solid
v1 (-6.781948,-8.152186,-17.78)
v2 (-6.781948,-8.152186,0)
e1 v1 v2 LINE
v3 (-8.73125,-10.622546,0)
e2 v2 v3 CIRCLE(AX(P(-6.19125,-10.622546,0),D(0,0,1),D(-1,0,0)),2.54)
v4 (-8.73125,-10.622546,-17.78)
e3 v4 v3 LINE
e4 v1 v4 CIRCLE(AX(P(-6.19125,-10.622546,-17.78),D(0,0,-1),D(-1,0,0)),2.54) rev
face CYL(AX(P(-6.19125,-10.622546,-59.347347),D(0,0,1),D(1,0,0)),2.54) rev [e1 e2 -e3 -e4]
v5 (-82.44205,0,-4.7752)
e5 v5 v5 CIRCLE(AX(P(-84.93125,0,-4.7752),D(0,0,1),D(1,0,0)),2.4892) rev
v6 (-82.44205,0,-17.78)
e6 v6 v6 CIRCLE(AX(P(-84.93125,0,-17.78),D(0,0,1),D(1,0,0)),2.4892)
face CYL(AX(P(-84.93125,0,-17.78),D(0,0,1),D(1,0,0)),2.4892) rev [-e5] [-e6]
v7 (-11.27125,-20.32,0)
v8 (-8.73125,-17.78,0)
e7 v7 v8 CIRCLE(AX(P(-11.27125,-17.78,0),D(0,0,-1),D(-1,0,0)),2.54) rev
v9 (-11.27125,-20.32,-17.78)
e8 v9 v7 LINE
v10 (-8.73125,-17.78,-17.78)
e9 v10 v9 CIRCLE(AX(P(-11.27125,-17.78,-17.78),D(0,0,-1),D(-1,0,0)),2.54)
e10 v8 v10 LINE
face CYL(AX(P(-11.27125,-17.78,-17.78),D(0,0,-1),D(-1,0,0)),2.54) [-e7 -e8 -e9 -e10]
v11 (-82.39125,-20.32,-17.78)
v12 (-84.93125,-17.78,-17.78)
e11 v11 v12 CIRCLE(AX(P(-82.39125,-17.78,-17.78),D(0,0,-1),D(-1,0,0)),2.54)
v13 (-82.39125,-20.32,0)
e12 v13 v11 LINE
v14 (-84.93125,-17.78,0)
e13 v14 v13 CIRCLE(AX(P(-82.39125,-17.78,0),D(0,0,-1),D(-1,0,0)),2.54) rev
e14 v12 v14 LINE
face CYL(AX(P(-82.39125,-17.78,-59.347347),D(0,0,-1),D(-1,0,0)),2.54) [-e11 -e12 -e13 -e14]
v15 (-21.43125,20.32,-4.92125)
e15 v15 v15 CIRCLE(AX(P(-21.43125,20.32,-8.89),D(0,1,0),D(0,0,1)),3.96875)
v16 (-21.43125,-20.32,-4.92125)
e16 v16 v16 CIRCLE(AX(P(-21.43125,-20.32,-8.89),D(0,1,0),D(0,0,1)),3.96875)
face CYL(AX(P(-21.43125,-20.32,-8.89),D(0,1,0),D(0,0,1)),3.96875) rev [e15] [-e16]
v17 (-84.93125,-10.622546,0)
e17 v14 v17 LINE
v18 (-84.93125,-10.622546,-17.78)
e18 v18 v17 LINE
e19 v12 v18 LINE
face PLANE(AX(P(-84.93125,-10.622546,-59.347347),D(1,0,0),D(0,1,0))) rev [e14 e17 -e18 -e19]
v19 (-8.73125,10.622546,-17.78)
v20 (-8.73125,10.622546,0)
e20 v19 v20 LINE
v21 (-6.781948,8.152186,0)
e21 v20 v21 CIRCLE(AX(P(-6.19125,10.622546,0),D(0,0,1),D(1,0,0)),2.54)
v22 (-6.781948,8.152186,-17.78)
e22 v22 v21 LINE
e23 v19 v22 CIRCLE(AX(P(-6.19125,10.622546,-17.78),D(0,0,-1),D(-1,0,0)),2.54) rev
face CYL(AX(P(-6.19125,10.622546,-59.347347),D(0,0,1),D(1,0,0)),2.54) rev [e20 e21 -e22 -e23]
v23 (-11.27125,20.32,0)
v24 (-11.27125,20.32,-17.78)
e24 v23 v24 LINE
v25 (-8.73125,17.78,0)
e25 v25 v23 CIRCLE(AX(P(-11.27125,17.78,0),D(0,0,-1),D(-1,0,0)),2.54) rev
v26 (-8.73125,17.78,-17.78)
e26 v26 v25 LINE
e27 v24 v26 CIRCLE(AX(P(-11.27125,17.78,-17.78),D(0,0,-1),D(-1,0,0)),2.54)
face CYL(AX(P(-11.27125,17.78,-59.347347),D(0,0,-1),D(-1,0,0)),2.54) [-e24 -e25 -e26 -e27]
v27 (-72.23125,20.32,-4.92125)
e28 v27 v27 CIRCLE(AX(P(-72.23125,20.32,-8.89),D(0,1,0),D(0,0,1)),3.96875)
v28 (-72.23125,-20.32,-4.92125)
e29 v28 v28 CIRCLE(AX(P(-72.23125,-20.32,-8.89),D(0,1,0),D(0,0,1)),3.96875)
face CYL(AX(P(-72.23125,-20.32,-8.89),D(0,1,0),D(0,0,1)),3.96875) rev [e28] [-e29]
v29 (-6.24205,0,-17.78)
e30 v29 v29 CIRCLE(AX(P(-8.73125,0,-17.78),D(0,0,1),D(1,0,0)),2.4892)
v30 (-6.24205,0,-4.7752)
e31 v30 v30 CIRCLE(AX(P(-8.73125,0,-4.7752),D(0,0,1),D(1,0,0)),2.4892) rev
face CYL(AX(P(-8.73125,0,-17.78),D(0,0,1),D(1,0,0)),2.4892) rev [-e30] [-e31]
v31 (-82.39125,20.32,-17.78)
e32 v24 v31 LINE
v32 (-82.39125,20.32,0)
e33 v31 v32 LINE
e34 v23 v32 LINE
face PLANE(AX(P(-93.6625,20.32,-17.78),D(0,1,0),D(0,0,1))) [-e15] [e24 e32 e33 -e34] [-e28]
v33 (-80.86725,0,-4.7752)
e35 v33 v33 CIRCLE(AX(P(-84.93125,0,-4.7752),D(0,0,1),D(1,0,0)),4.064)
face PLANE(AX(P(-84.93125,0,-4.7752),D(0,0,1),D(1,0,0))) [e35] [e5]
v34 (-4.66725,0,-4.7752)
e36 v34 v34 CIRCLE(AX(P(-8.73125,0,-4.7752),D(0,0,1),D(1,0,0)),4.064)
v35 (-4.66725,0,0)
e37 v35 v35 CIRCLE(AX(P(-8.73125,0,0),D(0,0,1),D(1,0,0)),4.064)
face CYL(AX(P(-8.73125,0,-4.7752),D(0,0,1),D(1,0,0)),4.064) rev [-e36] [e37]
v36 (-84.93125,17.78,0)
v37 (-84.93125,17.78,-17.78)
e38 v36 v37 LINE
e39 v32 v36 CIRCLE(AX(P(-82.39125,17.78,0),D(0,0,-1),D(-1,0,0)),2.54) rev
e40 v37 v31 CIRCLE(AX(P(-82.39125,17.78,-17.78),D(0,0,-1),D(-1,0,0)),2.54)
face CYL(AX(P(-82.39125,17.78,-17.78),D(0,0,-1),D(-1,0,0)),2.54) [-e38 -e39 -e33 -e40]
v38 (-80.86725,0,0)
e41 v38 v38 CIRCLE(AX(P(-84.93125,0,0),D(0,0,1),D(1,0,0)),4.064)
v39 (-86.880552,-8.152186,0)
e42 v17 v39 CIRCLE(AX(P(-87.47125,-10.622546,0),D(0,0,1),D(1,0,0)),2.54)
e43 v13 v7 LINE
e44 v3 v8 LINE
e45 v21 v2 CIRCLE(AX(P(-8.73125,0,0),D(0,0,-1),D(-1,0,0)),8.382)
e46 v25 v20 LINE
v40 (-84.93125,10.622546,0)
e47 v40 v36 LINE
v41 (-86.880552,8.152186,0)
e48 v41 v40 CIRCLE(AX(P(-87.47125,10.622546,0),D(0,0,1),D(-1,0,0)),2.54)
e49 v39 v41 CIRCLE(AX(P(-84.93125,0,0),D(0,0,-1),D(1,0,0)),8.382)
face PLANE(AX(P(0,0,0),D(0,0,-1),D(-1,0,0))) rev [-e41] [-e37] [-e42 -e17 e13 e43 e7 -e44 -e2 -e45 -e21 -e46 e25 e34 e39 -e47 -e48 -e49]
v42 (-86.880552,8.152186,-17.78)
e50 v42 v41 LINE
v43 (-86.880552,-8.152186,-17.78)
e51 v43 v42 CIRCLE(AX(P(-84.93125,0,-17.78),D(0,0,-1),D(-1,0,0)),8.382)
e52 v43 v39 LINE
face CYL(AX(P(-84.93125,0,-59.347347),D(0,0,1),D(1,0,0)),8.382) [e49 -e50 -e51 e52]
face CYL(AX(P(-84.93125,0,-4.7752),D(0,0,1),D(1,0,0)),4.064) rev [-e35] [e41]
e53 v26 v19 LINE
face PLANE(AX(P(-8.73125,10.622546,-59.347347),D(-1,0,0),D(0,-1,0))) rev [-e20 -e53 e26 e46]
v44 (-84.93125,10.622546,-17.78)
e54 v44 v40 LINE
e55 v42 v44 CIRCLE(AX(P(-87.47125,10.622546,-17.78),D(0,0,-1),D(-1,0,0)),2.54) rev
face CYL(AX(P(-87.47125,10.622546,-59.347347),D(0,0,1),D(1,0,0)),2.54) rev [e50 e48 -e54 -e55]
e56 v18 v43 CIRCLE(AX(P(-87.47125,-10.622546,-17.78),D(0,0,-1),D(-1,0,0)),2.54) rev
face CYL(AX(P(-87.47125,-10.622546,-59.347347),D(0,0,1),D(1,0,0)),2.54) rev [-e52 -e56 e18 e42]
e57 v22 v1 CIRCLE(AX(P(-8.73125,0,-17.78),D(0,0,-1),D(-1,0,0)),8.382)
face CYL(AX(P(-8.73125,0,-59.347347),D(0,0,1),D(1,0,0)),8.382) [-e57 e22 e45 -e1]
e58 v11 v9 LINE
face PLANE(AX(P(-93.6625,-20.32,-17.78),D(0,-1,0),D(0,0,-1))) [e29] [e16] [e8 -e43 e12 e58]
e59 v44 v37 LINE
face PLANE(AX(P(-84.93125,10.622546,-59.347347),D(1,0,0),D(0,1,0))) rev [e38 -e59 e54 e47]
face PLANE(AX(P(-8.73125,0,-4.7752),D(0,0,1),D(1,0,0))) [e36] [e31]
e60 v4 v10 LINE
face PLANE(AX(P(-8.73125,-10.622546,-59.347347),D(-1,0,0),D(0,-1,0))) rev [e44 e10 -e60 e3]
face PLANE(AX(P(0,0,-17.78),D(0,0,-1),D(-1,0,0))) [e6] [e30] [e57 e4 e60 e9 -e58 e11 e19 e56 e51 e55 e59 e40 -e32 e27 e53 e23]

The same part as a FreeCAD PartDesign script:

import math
import FreeCAD as App
import Part
import Sketcher
Q = App.Units.Quantity


def edges_at(feature, points):
    """Names of the edges that pass closest to the given points."""
    edges = feature.Shape.Edges
    near = lambda p: min(range(len(edges)), key=lambda i: edges[i].distToShape(Part.Vertex(*p))[0])
    return sorted({f"Edge{near(p) + 1}" for p in points})

doc = App.newDocument("Part")
body = doc.addObject("PartDesign::Body", "Body")

# Sketch on XY plane
sketch1 = body.newObject("Sketcher::SketchObject", "Sketch")
sketch1.AttachmentSupport = (doc.getObject("XY_Plane"), [""])
sketch1.MapMode = "FlatFace"
sketch1.addGeometry(Part.LineSegment(App.Vector(-93.6625, 20.32, 0), App.Vector(-93.6625, -20.32, 0)), False)
sketch1.addGeometry(Part.LineSegment(App.Vector(-93.6625, -20.32, 0), App.Vector(0, -20.32, 0)), False)
sketch1.addGeometry(Part.LineSegment(App.Vector(0, -20.32, 0), App.Vector(0, 20.32, 0)), False)
sketch1.addGeometry(Part.LineSegment(App.Vector(0, 20.32, 0), App.Vector(-93.6625, 20.32, 0)), False)
sketch1.addGeometry(Part.Circle(App.Vector(-84.93125, 0, 0), App.Vector(0, 0, 1), 2.4892), False)
sketch1.addGeometry(Part.Circle(App.Vector(-8.73125, 0, 0), App.Vector(0, 0, 1), 2.4892), False)
sketch1.addConstraint(Sketcher.Constraint("Coincident", 0, 2, 1, 1))
sketch1.addConstraint(Sketcher.Constraint("Coincident", 1, 2, 2, 1))
sketch1.addConstraint(Sketcher.Constraint("Coincident", 2, 2, 3, 1))
sketch1.addConstraint(Sketcher.Constraint("Coincident", 3, 2, 0, 1))
sketch1.addConstraint(Sketcher.Constraint("Vertical", 0))
sketch1.addConstraint(Sketcher.Constraint("Horizontal", 1))
sketch1.addConstraint(Sketcher.Constraint("Vertical", 2))
sketch1.addConstraint(Sketcher.Constraint("Horizontal", 3))
sketch1.addConstraint(Sketcher.Constraint("Equal", 4, 5))
sketch1.addConstraint(Sketcher.Constraint("Symmetric", 1, 2, 2, 2, -1, 1))
sketch1.addConstraint(Sketcher.Constraint("PointOnObject", 4, 3, -1))
sketch1.addConstraint(Sketcher.Constraint("PointOnObject", 5, 3, -1))
sketch1.addConstraint(Sketcher.Constraint("Diameter", 4, Q("0.196 in")))
sketch1.addConstraint(Sketcher.Constraint("DistanceY", 0, 2, 0, 1, Q("1.6 in")))
sketch1.addConstraint(Sketcher.Constraint("DistanceX", 4, 3, 5, 3, Q("3 in")))
sketch1.addConstraint(Sketcher.Constraint("DistanceX", 1, 1, 1, 2, Q("3.6875 in")))
sketch1.addConstraint(Sketcher.Constraint("DistanceX", 4, 3, -1, 1, Q("3.34375 in")))
pad1 = body.newObject("PartDesign::Pad", "Pad")
pad1.Profile = sketch1
pad1.Length = Q("0.7 in")
pad1.Reversed = True

# Sketch on XZ plane
sketch2 = body.newObject("Sketcher::SketchObject", "Sketch001")
sketch2.AttachmentSupport = (doc.getObject("XZ_Plane"), [""])
sketch2.MapMode = "FlatFace"
sketch2.AttachmentOffset = App.Placement(App.Vector(0, 0, -0.8 * 25.4), App.Rotation())
sketch2.addGeometry(Part.Circle(App.Vector(-72.23125, -8.89, 0), App.Vector(0, 0, 1), 3.96875), False)
sketch2.addGeometry(Part.Circle(App.Vector(-21.43125, -8.89, 0), App.Vector(0, 0, 1), 3.96875), False)
sketch2.addConstraint(Sketcher.Constraint("Equal", 0, 1))
sketch2.addConstraint(Sketcher.Constraint("Horizontal", 0, 3, 1, 3))
sketch2.addConstraint(Sketcher.Constraint("Diameter", 0, Q("0.3125 in")))
sketch2.addConstraint(Sketcher.Constraint("DistanceX", 0, 3, 1, 3, Q("2 in")))
sketch2.addConstraint(Sketcher.Constraint("DistanceY", 0, 3, -1, 1, Q("0.35 in")))
sketch2.addConstraint(Sketcher.Constraint("DistanceX", 0, 3, -1, 1, Q("2.84375 in")))
pocket1 = body.newObject("PartDesign::Pocket", "Pocket")
pocket1.Profile = sketch2
pocket1.Type = "ThroughAll"
pocket1.Reversed = True

# Sketch on XY plane
sketch3 = body.newObject("Sketcher::SketchObject", "Sketch002")
sketch3.AttachmentSupport = (doc.getObject("XY_Plane"), [""])
sketch3.MapMode = "FlatFace"
sketch3.addGeometry(Part.LineSegment(App.Vector(-93.6625, 20.32, 0), App.Vector(-93.6625, -20.32, 0)), False)
sketch3.addGeometry(Part.LineSegment(App.Vector(-93.6625, -20.32, 0), App.Vector(-84.93125, -20.32, 0)), False)
sketch3.addGeometry(Part.LineSegment(App.Vector(-84.93125, -20.32, 0), App.Vector(-84.93125, -10.622546, 0)), False)
sketch3.addGeometry(Part.ArcOfCircle(Part.Circle(App.Vector(-87.47125, -10.622546, 0), App.Vector(0, 0, 1), 2.54), math.radians(0), math.radians(76.552273)), False)
sketch3.addGeometry(Part.ArcOfCircle(Part.Circle(App.Vector(-84.93125, 0, 0), App.Vector(0, 0, 1), 8.382), math.radians(103.447727), math.radians(256.552273)), False)
sketch3.addGeometry(Part.ArcOfCircle(Part.Circle(App.Vector(-87.47125, 10.622546, 0), App.Vector(0, 0, 1), 2.54), math.radians(-76.552273), math.radians(0)), False)
sketch3.addGeometry(Part.LineSegment(App.Vector(-84.93125, 10.622546, 0), App.Vector(-84.93125, 20.32, 0)), False)
sketch3.addGeometry(Part.LineSegment(App.Vector(-84.93125, 20.32, 0), App.Vector(-93.6625, 20.32, 0)), False)
sketch3.addGeometry(Part.LineSegment(App.Vector(0, -20.32, 0), App.Vector(0, 20.32, 0)), False)
sketch3.addGeometry(Part.LineSegment(App.Vector(0, 20.32, 0), App.Vector(-8.73125, 20.32, 0)), False)
sketch3.addGeometry(Part.LineSegment(App.Vector(-8.73125, 20.32, 0), App.Vector(-8.73125, 10.622546, 0)), False)
sketch3.addGeometry(Part.ArcOfCircle(Part.Circle(App.Vector(-6.19125, 10.622546, 0), App.Vector(0, 0, 1), 2.54), math.radians(-180), math.radians(-103.447727)), False)
sketch3.addGeometry(Part.ArcOfCircle(Part.Circle(App.Vector(-8.73125, 0, 0), App.Vector(0, 0, 1), 8.382), math.radians(-76.552273), math.radians(76.552273)), False)
sketch3.addGeometry(Part.ArcOfCircle(Part.Circle(App.Vector(-6.19125, -10.622546, 0), App.Vector(0, 0, 1), 2.54), math.radians(103.447727), math.radians(180)), False)
sketch3.addGeometry(Part.LineSegment(App.Vector(-8.73125, -10.622546, 0), App.Vector(-8.73125, -20.32, 0)), False)
sketch3.addGeometry(Part.LineSegment(App.Vector(-8.73125, -20.32, 0), App.Vector(0, -20.32, 0)), False)
sketch3.addConstraint(Sketcher.Constraint("Coincident", 0, 2, 1, 1))
sketch3.addConstraint(Sketcher.Constraint("Coincident", 1, 2, 2, 1))
sketch3.addConstraint(Sketcher.Constraint("Tangent", 2, 2, 3, 1))
sketch3.addConstraint(Sketcher.Constraint("Tangent", 3, 2, 4, 2))
sketch3.addConstraint(Sketcher.Constraint("Tangent", 4, 1, 5, 1))
sketch3.addConstraint(Sketcher.Constraint("Tangent", 5, 2, 6, 1))
sketch3.addConstraint(Sketcher.Constraint("Coincident", 6, 2, 7, 1))
sketch3.addConstraint(Sketcher.Constraint("Coincident", 7, 2, 0, 1))
sketch3.addConstraint(Sketcher.Constraint("Coincident", 8, 2, 9, 1))
sketch3.addConstraint(Sketcher.Constraint("Coincident", 9, 2, 10, 1))
sketch3.addConstraint(Sketcher.Constraint("Tangent", 10, 2, 11, 1))
sketch3.addConstraint(Sketcher.Constraint("Tangent", 11, 2, 12, 2))
sketch3.addConstraint(Sketcher.Constraint("Tangent", 12, 1, 13, 1))
sketch3.addConstraint(Sketcher.Constraint("Tangent", 13, 2, 14, 1))
sketch3.addConstraint(Sketcher.Constraint("Coincident", 14, 2, 15, 1))
sketch3.addConstraint(Sketcher.Constraint("Coincident", 15, 2, 8, 1))
sketch3.addConstraint(Sketcher.Constraint("Vertical", 0))
sketch3.addConstraint(Sketcher.Constraint("Horizontal", 1))
sketch3.addConstraint(Sketcher.Constraint("Vertical", 2))
sketch3.addConstraint(Sketcher.Constraint("Vertical", 6))
sketch3.addConstraint(Sketcher.Constraint("Horizontal", 7))
sketch3.addConstraint(Sketcher.Constraint("Vertical", 8))
sketch3.addConstraint(Sketcher.Constraint("Horizontal", 9))
sketch3.addConstraint(Sketcher.Constraint("Vertical", 10))
sketch3.addConstraint(Sketcher.Constraint("Vertical", 14))
sketch3.addConstraint(Sketcher.Constraint("Horizontal", 15))
sketch3.addConstraint(Sketcher.Constraint("Equal", 3, 5))
sketch3.addConstraint(Sketcher.Constraint("Equal", 5, 11))
sketch3.addConstraint(Sketcher.Constraint("Equal", 4, 12))
sketch3.addConstraint(Sketcher.Constraint("Equal", 11, 13))
sketch3.addConstraint(Sketcher.Constraint("Symmetric", 8, 2, 15, 2, -1, 1))
sketch3.addConstraint(Sketcher.Constraint("Symmetric", 3, 3, 5, 3, -1))
sketch3.addConstraint(Sketcher.Constraint("Symmetric", 11, 3, 13, 3, -1))
sketch3.addConstraint(Sketcher.Constraint("Horizontal", 5, 3, 11, 3))
sketch3.addConstraint(Sketcher.Constraint("Horizontal", 7, 2, 8, 2))
sketch3.addConstraint(Sketcher.Constraint("Horizontal", 1, 2, 14, 2))
sketch3.addConstraint(Sketcher.Constraint("Vertical", 4, 3, 1, 2))
sketch3.addConstraint(Sketcher.Constraint("Equal", 7, 9))
sketch3.addConstraint(Sketcher.Constraint("Radius", 3, Q("0.1 in")))
sketch3.addConstraint(Sketcher.Constraint("Radius", 4, Q("0.33 in")))
sketch3.addConstraint(Sketcher.Constraint("DistanceY", 0, 2, 0, 1, Q("1.6 in")))
sketch3.addConstraint(Sketcher.Constraint("DistanceX", 4, 3, 12, 3, Q("3 in")))
sketch3.addConstraint(Sketcher.Constraint("DistanceX", 1, 1, 1, 2, Q("0.34375 in")))
pocket2 = body.newObject("PartDesign::Pocket", "Pocket001")
pocket2.Profile = sketch3
pocket2.Length = Q("0.7 in")
doc.recompute()

fillet = body.newObject("PartDesign::Fillet", "Fillet")
fillet.Base = (pocket2, edges_at(pocket2, [
    (-84.931, 20.32, -8.89),
    (-84.931, -20.32, -8.89),
    (-8.731, 20.32, -8.89),
    (-8.731, -20.32, -8.89),
]))
fillet.Radius = Q("0.1 in")

# Sketch on XY plane
sketch4 = body.newObject("Sketcher::SketchObject", "Sketch003")
sketch4.AttachmentSupport = (doc.getObject("XY_Plane"), [""])
sketch4.MapMode = "FlatFace"
sketch4.addGeometry(Part.Circle(App.Vector(-84.93125, 0, 0), App.Vector(0, 0, 1), 4.064), False)
sketch4.addGeometry(Part.Circle(App.Vector(-8.73125, 0, 0), App.Vector(0, 0, 1), 4.064), False)
sketch4.addConstraint(Sketcher.Constraint("Equal", 0, 1))
sketch4.addConstraint(Sketcher.Constraint("PointOnObject", 0, 3, -1))
sketch4.addConstraint(Sketcher.Constraint("PointOnObject", 1, 3, -1))
sketch4.addConstraint(Sketcher.Constraint("Diameter", 0, Q("0.32 in")))
sketch4.addConstraint(Sketcher.Constraint("DistanceX", 0, 3, 1, 3, Q("3 in")))
sketch4.addConstraint(Sketcher.Constraint("DistanceX", 0, 3, -1, 1, Q("3.34375 in")))
pocket3 = body.newObject("PartDesign::Pocket", "Pocket002")
pocket3.Profile = sketch4
pocket3.Length = Q("0.188 in")

doc.recompute()
